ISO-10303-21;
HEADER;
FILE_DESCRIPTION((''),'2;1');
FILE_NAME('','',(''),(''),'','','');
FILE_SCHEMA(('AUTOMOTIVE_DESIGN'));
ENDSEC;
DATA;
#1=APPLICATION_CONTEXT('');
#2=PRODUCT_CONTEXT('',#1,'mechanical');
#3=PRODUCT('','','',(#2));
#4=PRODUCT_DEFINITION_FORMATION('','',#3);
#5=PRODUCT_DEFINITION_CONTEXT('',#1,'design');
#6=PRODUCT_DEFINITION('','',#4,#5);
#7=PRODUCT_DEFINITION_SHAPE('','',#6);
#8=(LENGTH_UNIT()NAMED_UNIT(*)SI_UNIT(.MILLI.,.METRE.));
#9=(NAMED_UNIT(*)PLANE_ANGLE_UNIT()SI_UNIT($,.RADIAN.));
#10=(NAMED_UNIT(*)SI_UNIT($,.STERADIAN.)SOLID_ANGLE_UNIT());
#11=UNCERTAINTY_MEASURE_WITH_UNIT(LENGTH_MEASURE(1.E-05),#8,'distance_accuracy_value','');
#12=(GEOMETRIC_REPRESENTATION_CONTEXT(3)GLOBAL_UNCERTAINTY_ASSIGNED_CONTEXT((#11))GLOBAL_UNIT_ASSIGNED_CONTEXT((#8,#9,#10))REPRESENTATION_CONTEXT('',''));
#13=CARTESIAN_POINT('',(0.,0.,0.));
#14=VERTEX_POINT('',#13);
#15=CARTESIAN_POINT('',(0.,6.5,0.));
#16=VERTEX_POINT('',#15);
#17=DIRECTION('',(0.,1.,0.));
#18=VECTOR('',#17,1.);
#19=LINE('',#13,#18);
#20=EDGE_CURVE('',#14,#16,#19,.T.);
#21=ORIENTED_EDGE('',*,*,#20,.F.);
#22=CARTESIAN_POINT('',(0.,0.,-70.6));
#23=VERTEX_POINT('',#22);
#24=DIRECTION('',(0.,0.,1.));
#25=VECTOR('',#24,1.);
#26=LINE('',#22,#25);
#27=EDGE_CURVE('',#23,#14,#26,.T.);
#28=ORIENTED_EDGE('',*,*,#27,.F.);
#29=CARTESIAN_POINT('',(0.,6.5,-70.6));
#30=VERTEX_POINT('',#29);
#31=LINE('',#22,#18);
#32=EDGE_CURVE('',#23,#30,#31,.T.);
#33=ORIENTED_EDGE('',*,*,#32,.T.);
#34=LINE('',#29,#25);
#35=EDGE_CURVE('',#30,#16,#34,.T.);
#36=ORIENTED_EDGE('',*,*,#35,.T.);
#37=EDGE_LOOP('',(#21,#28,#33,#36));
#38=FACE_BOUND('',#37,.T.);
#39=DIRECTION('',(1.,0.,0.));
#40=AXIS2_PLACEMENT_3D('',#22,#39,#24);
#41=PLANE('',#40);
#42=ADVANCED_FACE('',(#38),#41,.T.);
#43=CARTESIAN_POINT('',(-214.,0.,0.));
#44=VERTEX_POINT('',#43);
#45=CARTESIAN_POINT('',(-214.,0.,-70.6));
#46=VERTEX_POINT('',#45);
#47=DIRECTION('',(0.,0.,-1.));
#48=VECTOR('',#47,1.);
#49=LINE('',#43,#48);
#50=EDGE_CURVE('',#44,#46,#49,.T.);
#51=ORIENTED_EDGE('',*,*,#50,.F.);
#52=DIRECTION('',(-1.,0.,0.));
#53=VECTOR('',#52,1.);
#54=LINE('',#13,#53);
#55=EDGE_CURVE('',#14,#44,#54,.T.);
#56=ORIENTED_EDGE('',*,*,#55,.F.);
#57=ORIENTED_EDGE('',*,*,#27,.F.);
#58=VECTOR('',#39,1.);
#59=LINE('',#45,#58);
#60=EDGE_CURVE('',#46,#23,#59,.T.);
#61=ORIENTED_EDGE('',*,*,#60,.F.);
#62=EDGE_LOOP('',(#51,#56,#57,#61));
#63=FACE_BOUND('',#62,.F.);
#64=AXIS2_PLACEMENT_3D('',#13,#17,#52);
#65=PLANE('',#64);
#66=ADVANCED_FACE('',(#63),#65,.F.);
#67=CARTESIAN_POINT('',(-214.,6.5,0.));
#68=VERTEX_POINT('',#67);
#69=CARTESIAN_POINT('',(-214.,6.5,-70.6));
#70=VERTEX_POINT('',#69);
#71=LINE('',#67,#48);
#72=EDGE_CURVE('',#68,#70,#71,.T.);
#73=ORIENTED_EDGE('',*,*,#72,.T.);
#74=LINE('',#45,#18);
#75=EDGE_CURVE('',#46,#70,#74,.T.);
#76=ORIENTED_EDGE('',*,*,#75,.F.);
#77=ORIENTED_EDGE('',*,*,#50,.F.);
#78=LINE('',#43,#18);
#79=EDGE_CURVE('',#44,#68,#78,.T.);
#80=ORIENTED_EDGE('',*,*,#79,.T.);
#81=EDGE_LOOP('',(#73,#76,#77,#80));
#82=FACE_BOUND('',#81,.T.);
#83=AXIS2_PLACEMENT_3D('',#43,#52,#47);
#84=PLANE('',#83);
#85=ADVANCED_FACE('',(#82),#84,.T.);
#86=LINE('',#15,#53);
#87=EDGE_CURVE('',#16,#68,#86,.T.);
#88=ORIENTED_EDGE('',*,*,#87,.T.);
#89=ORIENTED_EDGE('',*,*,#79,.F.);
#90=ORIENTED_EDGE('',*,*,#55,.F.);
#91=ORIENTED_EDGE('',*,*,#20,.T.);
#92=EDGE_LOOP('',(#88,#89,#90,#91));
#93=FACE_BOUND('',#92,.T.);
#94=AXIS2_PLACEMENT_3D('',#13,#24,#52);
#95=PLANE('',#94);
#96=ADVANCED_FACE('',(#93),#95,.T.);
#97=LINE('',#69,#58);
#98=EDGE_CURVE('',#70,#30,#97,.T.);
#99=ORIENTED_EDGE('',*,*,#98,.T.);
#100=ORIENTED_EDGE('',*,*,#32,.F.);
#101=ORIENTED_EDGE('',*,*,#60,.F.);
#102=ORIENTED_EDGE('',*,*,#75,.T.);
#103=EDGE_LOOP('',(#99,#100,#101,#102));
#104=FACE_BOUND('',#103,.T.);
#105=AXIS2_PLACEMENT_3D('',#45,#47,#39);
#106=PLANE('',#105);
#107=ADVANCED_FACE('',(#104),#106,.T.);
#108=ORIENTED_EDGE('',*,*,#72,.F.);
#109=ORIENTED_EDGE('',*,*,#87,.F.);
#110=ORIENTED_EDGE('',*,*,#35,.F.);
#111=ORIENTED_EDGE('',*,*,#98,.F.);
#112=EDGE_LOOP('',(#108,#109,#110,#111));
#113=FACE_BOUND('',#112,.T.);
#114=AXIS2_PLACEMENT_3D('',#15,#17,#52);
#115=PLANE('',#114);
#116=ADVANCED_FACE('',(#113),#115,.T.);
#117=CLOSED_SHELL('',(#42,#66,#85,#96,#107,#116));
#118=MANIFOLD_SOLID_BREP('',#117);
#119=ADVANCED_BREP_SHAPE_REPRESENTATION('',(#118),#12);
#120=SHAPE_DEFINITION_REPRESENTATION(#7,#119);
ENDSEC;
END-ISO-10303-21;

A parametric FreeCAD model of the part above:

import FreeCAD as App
import Part
import Sketcher

doc = App.newDocument("Part")
body = doc.addObject("PartDesign::Body", "Body")

# Sketch on XZ plane
sketch1 = doc.addObject("Sketcher::SketchObject", "Sketch")
body.addObject(sketch1)
sketch1.AttachmentSupport = (doc.XZ_Plane, [""])
sketch1.MapMode = "FlatFace"
sketch1.addGeometry(Part.LineSegment(App.Vector(-214, 0, 0), App.Vector(0, 0, 0)), False)
sketch1.addGeometry(Part.LineSegment(App.Vector(0, 0, 0), App.Vector(0, -71, 0)), False)
sketch1.addGeometry(Part.LineSegment(App.Vector(0, -71, 0), App.Vector(-214, -71, 0)), False)
sketch1.addGeometry(Part.LineSegment(App.Vector(-214, -71, 0), App.Vector(-214, 0, 0)), False)
sketch1.addConstraint(Sketcher.Constraint("Coincident", 0, 2, 1, 1))
sketch1.addConstraint(Sketcher.Constraint("Coincident", 1, 2, 2, 1))
sketch1.addConstraint(Sketcher.Constraint("Coincident", 2, 2, 3, 1))
sketch1.addConstraint(Sketcher.Constraint("Coincident", 3, 2, 0, 1))
sketch1.addConstraint(Sketcher.Constraint("Horizontal", 0))
sketch1.addConstraint(Sketcher.Constraint("Vertical", 1))
sketch1.addConstraint(Sketcher.Constraint("Horizontal", 2))
sketch1.addConstraint(Sketcher.Constraint("Vertical", 3))
sketch1.addConstraint(Sketcher.Constraint("Coincident", 0, 2, -1, 1))
sketch1.addConstraint(Sketcher.Constraint("DistanceX", 0, 1, 0, 2, 214.0))
sketch1.addConstraint(Sketcher.Constraint("DistanceY", 1, 2, 1, 1, 70.6))
pad1 = doc.addObject("PartDesign::Pad", "Pad")
body.addObject(pad1)
pad1.Profile = sketch1
pad1.Length = 6.5
pad1.Reversed = True

doc.recompute()
